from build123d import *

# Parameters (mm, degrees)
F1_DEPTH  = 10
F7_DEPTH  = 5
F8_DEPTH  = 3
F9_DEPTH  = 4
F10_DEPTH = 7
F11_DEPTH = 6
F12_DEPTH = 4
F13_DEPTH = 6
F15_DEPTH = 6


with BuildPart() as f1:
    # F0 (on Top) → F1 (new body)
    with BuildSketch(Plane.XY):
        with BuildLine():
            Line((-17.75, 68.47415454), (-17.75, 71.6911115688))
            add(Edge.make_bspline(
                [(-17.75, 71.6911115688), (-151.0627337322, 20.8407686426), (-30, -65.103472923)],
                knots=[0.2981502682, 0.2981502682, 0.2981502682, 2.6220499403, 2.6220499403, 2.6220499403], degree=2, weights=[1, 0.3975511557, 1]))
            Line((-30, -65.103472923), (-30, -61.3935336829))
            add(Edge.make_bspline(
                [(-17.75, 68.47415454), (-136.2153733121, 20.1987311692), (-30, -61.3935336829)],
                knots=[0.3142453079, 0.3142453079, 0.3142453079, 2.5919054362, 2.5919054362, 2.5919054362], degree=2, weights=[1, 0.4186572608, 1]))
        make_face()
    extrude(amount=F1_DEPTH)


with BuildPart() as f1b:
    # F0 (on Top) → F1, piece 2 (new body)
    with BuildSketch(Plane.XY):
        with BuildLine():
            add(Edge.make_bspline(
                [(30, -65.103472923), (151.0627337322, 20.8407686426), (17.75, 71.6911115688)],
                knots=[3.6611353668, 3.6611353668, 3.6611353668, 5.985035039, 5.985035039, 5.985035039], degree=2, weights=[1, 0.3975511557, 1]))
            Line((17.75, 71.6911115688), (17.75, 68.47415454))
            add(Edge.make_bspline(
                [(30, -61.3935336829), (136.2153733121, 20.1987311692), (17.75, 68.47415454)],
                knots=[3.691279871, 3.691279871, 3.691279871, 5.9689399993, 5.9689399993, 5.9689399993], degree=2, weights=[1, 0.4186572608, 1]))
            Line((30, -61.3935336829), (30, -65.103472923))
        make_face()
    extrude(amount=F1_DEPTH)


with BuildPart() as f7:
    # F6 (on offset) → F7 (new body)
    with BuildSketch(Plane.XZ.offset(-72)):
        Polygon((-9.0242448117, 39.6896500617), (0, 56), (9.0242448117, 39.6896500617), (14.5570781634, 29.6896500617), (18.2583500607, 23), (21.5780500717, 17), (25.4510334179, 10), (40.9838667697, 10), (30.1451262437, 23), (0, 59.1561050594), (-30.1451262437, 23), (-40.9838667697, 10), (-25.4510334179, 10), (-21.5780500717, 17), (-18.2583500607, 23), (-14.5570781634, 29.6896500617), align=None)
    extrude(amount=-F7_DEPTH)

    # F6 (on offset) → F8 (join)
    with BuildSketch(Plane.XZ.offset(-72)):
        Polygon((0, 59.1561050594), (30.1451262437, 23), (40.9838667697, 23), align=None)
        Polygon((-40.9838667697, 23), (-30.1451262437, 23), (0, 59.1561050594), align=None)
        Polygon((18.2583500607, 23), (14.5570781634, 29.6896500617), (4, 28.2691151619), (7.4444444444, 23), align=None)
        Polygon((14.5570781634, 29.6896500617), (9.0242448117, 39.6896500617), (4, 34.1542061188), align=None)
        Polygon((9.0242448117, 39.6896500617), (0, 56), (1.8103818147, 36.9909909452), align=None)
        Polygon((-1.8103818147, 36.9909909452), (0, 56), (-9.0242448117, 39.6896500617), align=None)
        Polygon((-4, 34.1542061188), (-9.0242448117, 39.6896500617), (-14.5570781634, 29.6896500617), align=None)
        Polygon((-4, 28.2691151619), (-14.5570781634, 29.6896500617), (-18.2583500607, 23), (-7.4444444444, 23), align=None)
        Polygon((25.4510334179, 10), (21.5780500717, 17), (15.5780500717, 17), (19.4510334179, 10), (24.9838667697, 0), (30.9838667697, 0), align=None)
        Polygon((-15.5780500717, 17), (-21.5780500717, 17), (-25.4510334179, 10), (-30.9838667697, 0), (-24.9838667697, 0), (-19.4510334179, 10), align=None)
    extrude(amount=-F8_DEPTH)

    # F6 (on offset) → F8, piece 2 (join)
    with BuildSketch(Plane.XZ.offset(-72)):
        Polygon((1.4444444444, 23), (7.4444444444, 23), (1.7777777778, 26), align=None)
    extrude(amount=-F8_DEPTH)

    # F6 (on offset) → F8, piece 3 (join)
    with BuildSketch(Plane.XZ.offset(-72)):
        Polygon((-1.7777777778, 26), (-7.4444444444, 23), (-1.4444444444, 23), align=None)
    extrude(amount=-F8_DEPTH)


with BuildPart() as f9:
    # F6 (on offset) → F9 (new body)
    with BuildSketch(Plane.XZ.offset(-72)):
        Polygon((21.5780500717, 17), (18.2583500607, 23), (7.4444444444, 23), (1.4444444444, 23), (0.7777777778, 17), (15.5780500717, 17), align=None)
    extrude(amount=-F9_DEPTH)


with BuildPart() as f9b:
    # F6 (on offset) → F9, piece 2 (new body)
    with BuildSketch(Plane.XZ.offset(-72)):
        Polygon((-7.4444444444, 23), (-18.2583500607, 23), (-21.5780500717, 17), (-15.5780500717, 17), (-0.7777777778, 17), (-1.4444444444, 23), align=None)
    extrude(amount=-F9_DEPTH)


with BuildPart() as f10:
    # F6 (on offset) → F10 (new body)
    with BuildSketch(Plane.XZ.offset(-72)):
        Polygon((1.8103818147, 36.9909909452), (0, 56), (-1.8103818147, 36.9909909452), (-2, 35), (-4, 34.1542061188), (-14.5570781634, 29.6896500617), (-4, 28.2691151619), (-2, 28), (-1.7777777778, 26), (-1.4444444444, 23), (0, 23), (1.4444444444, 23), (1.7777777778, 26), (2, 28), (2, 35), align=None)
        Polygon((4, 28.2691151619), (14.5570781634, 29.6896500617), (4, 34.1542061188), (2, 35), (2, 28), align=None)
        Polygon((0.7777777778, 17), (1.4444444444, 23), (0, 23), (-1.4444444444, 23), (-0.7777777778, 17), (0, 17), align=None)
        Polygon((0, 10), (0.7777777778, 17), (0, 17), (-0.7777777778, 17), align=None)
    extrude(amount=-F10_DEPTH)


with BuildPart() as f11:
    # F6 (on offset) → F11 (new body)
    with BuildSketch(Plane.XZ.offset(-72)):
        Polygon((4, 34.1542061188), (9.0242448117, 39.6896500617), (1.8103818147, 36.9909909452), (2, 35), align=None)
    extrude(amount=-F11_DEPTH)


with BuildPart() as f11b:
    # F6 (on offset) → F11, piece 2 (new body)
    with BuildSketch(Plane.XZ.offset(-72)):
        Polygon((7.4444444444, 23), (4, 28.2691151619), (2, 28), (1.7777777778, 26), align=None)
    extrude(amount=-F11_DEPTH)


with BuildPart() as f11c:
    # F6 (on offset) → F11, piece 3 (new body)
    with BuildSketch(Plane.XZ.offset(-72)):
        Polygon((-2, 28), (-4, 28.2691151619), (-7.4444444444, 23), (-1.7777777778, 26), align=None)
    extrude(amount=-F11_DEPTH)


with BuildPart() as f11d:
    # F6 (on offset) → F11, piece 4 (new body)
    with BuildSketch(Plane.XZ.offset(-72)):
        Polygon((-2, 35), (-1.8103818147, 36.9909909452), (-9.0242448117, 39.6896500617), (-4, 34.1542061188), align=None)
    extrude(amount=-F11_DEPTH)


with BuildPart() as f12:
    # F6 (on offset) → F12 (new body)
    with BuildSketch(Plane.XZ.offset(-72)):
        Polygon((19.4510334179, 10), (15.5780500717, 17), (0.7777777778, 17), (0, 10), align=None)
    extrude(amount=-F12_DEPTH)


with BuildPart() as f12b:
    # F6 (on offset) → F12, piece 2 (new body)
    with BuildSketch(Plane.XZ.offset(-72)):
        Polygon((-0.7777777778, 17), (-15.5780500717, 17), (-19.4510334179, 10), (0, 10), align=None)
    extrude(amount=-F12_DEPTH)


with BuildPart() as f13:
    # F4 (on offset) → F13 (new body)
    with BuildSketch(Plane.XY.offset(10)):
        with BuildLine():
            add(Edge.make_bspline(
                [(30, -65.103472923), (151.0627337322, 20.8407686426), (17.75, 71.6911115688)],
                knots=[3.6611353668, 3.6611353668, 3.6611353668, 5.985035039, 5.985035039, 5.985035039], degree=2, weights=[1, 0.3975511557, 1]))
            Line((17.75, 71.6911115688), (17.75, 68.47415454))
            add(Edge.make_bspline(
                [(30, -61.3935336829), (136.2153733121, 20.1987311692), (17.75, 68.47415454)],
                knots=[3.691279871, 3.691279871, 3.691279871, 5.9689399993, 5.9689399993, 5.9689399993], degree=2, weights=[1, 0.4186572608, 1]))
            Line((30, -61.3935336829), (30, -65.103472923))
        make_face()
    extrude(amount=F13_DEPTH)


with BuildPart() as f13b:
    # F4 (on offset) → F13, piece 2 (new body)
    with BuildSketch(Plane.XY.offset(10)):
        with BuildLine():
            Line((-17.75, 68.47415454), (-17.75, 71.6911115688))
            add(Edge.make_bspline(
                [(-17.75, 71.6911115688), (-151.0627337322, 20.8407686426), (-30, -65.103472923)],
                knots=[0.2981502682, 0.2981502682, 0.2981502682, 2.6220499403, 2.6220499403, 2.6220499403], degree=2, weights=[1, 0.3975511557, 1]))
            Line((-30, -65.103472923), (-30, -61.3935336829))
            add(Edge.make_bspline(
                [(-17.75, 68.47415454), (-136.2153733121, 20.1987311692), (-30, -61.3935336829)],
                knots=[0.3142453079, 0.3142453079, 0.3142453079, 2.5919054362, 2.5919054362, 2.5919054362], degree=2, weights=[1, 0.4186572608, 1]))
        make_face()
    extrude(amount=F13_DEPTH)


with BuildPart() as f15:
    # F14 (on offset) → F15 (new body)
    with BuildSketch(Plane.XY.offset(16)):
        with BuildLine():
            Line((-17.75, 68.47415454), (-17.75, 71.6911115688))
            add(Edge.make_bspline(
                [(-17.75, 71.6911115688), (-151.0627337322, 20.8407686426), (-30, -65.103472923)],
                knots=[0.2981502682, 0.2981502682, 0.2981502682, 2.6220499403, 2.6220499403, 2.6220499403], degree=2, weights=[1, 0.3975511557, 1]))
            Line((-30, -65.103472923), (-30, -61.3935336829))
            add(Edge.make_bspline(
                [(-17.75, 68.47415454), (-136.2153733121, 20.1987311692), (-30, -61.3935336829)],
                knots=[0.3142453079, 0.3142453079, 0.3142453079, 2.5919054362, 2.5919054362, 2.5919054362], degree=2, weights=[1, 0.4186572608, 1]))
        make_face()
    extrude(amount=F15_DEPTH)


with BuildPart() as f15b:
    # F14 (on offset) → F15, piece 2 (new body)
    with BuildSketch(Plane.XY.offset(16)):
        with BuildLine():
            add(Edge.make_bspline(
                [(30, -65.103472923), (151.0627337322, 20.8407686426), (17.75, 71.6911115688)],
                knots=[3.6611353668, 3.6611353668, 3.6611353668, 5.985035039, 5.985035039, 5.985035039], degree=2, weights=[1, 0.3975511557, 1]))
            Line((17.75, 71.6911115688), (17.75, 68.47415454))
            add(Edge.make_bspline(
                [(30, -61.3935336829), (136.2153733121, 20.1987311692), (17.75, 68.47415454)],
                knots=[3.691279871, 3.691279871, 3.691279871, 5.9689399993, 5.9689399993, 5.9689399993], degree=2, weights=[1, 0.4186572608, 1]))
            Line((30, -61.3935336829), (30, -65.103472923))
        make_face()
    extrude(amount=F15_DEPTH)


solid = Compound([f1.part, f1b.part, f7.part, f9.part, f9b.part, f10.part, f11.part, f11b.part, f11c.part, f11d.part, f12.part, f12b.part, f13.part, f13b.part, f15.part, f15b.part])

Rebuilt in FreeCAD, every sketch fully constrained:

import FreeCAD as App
import Part
import Sketcher


def add_polygon(sketch, points):
    """Adds a closed chain of lines whose ends are joined by coincident constraints."""
    first, n = sketch.GeometryCount, len(points)
    for a, b in zip(points, points[1:] + points[:1]):
        sketch.addGeometry(Part.LineSegment(App.Vector(*a, 0), App.Vector(*b, 0)), False)
    for i in range(n):
        sketch.addConstraint(Sketcher.Constraint("Coincident", first + i, 2, first + (i + 1) % n, 1))

doc = App.newDocument("Part")
body = doc.addObject("PartDesign::Body", "Body")

sketch1 = body.newObject("Sketcher::SketchObject", "Sketch")
sketch1.AttachmentSupport = (doc.getObject("XY_Plane"), [""])
sketch1.MapMode = "FlatFace"
sketch1.addGeometry([
    Part.LineSegment(App.Vector(-17.75, 68.474155, 0), App.Vector(-17.75, 71.691112, 0)),
    Part.BSplineCurve([App.Vector(-17.75, 71.691112, 0), App.Vector(-151.062734, 20.840769, 0), App.Vector(-30, -65.103473, 0)], [3, 3], [0.298150268, 2.62204994], False, 2, [1, 0.397551156, 1], False),
    Part.LineSegment(App.Vector(-30, -65.103473, 0), App.Vector(-30, -61.393534, 0)),
    Part.BSplineCurve([App.Vector(-17.75, 68.474155, 0), App.Vector(-136.215373, 20.198731, 0), App.Vector(-30, -61.393534, 0)], [3, 3], [0.314245308, 2.591905436], False, 2, [1, 0.418657261, 1], False),
], False)
sketch1.addConstraint([
    Sketcher.Constraint("Block", 1),
    Sketcher.Constraint("Block", 3),
    Sketcher.Constraint("Coincident", 0, 2, 1, 1),
    Sketcher.Constraint("Coincident", 1, 2, 2, 1),
    Sketcher.Constraint("Coincident", 2, 2, 3, 2),
    Sketcher.Constraint("Coincident", 3, 1, 0, 1),
])
pad1 = body.newObject("PartDesign::Pad", "Pad")
pad1.Profile = sketch1
pad1.Length = 10
body2 = doc.addObject("PartDesign::Body", "Body001")

sketch2 = body2.newObject("Sketcher::SketchObject", "Sketch001")
sketch2.AttachmentSupport = (doc.getObject("XY_Plane001"), [""])
sketch2.MapMode = "FlatFace"
sketch2.addGeometry([
    Part.BSplineCurve([App.Vector(30, -65.103473, 0), App.Vector(151.062734, 20.840769, 0), App.Vector(17.75, 71.691112, 0)], [3, 3], [3.661135367, 5.985035039], False, 2, [1, 0.397551156, 1], False),
    Part.LineSegment(App.Vector(17.75, 71.691112, 0), App.Vector(17.75, 68.474155, 0)),
    Part.BSplineCurve([App.Vector(30, -61.393534, 0), App.Vector(136.215373, 20.198731, 0), App.Vector(17.75, 68.474155, 0)], [3, 3], [3.691279871, 5.968939999], False, 2, [1, 0.418657261, 1], False),
    Part.LineSegment(App.Vector(30, -61.393534, 0), App.Vector(30, -65.103473, 0)),
], False)
sketch2.addConstraint([
    Sketcher.Constraint("Block", 0),
    Sketcher.Constraint("Block", 2),
    Sketcher.Constraint("Coincident", 0, 2, 1, 1),
    Sketcher.Constraint("Coincident", 1, 2, 2, 2),
    Sketcher.Constraint("Coincident", 2, 1, 3, 1),
    Sketcher.Constraint("Coincident", 3, 2, 0, 1),
])
pad2 = body2.newObject("PartDesign::Pad", "Pad001")
pad2.Profile = sketch2
pad2.Length = 10
body3 = doc.addObject("PartDesign::Body", "Body002")
body3.AllowCompound = True

sketch3 = body3.newObject("Sketcher::SketchObject", "Sketch002")
sketch3.AttachmentSupport = (doc.getObject("XZ_Plane002"), [""])
sketch3.MapMode = "FlatFace"
sketch3.AttachmentOffset = App.Placement(App.Vector(0, 0, -72), App.Rotation())
add_polygon(sketch3, [(-9, 40), (0, 56), (9, 40), (15, 30), (18, 23), (22, 17), (25, 10), (41, 10), (30, 23), (0, 59), (-30, 23), (-41, 10), (-25, 10), (-22, 17), (-18, 23), (-15, 30)])
sketch3.addConstraint([
    Sketcher.Constraint("Horizontal", 6),
    Sketcher.Constraint("Horizontal", 11),
    Sketcher.Constraint("Symmetric", 7, 2, 9, 2, -2),
    Sketcher.Constraint("Symmetric", 6, 2, 10, 2, -2),
    Sketcher.Constraint("Symmetric", 4, 2, 12, 2, -2),
    Sketcher.Constraint("Symmetric", 3, 2, 13, 2, -2),
    Sketcher.Constraint("Symmetric", 2, 2, 14, 2, -2),
    Sketcher.Constraint("Symmetric", 1, 2, 15, 2, -2),
    Sketcher.Constraint("PointOnObject", 0, 2, -2),
    Sketcher.Constraint("PointOnObject", 8, 2, -2),
    Sketcher.Constraint("Parallel", 1, 2),
    Sketcher.Constraint("Parallel", 2, 3),
    Sketcher.Constraint("Parallel", 3, 4),
    Sketcher.Constraint("Parallel", 4, 5),
    Sketcher.Constraint("Parallel", 7, 8),
    Sketcher.Constraint("Parallel", 0, 12),
    Sketcher.Constraint("Horizontal", 3, 2, 7, 2),
    Sketcher.Constraint("Distance", 5, 8.0),
    Sketcher.Constraint("DistanceY", -1, 1, 0, 2, 56.0),
    Sketcher.Constraint("DistanceY", -1, 1, 3, 2, 23.0),
    Sketcher.Constraint("DistanceY", -1, 1, 4, 2, 17.0),
    Sketcher.Constraint("DistanceY", -1, 1, 5, 2, 10.0),
    Sketcher.Constraint("DistanceY", 2, 2, 1, 2, 10.0),
    Sketcher.Constraint("Distance", 0, 18.6404),
    Sketcher.Constraint("Distance", 7, 16.92567),
    Sketcher.Constraint("Distance", 8, 47.07433),
])
pad3 = body3.newObject("PartDesign::Pad", "Pad002")
pad3.Profile = sketch3
pad3.Length = 5
pad3.Reversed = True

sketch4 = body3.newObject("Sketcher::SketchObject", "Sketch003")
sketch4.AttachmentSupport = (doc.getObject("XZ_Plane002"), [""])
sketch4.MapMode = "FlatFace"
sketch4.AttachmentOffset = App.Placement(App.Vector(0, 0, -72), App.Rotation())
add_polygon(sketch4, [(0, 59), (30, 23), (41, 23)])
add_polygon(sketch4, [(-41, 23), (-30, 23), (0, 59)])
add_polygon(sketch4, [(18, 23), (15, 30), (4, 28), (7, 23)])
add_polygon(sketch4, [(15, 30), (9, 40), (4, 34)])
add_polygon(sketch4, [(9, 40), (0, 56), (2, 37)])
add_polygon(sketch4, [(-2, 37), (0, 56), (-9, 40)])
add_polygon(sketch4, [(-4, 34), (-9, 40), (-15, 30)])
add_polygon(sketch4, [(-4, 28), (-15, 30), (-18, 23), (-7, 23)])
add_polygon(sketch4, [(25, 10), (22, 17), (16, 17), (19, 10), (25, 0), (31, 0)])
add_polygon(sketch4, [(-16, 17), (-22, 17), (-25, 10), (-31, 0), (-25, 0), (-19, 10)])
sketch4.addConstraint([
    Sketcher.Constraint("Horizontal", 1),
    Sketcher.Constraint("Horizontal", 3),
    Sketcher.Constraint("Horizontal", 9),
    Sketcher.Constraint("Horizontal", 24),
    Sketcher.Constraint("Horizontal", 27),
    Sketcher.Constraint("Horizontal", 30),
    Sketcher.Constraint("Horizontal", 32),
    Sketcher.Constraint("Horizontal", 35),
    Sketcher.Constraint("Coincident", 4, 2, 2, 2),
    Sketcher.Constraint("Coincident", 12, 2, 6, 2),
    Sketcher.Constraint("Coincident", 15, 2, 10, 2),
    Sketcher.Constraint("Coincident", 16, 2, 13, 2),
    Sketcher.Constraint("Coincident", 19, 2, 17, 2),
    Sketcher.Constraint("Coincident", 22, 2, 20, 2),
    Sketcher.Constraint("Symmetric", 30, 2, 34, 2, -1, 1),
    Sketcher.Constraint("Symmetric", 0, 2, 3, 2, -2),
    Sketcher.Constraint("Symmetric", 10, 2, 17, 2, -2),
    Sketcher.Constraint("Symmetric", 14, 2, 18, 2, -2),
    Sketcher.Constraint("Symmetric", 6, 2, 20, 2, -2),
    Sketcher.Constraint("Symmetric", 11, 2, 21, 2, -2),
    Sketcher.Constraint("Symmetric", 9, 2, 23, 2, -2),
    Sketcher.Constraint("Symmetric", 7, 2, 25, 2, -2),
    Sketcher.Constraint("Symmetric", 26, 2, 32, 2, -2),
    Sketcher.Constraint("Symmetric", 31, 2, 33, 2, -2),
    Sketcher.Constraint("Symmetric", 29, 2, 35, 2, -2),
    Sketcher.Constraint("Symmetric", 28, 2, 36, 2, -2),
    Sketcher.Constraint("PointOnObject", 2, 2, -2),
    Sketcher.Constraint("PointOnObject", 13, 2, -2),
    Sketcher.Constraint("Parallel", 6, 10),
    Sketcher.Constraint("Parallel", 10, 13),
    Sketcher.Constraint("Parallel", 13, 26),
    Sketcher.Constraint("Parallel", 26, 28),
    Sketcher.Constraint("Parallel", 28, 29),
    Sketcher.Constraint("Parallel", 29, 31),
    Sketcher.Constraint("Parallel", 36, 37),
    Sketcher.Constraint("Horizontal", 5, 2, 8, 2),
    Sketcher.Constraint("Horizontal", 28, 2, 31, 2),
    Sketcher.Constraint("Vertical", 7, 2, 11, 2),
    Sketcher.Constraint("Equal", 1, 3),
    Sketcher.Constraint("Equal", 9, 24),
    Sketcher.Constraint("Equal", 20, 29),
    Sketcher.Constraint("DistanceX", 27, 2, 27, 1, 6.0),
    Sketcher.Constraint("Distance", 26, 8.0),
    Sketcher.Constraint("DistanceY", -1, 1, 0, 2, 23.0),
    Sketcher.Constraint("DistanceX", -1, 1, 7, 2, 4.0),
    Sketcher.Constraint("DistanceY", -1, 1, 13, 2, 56.0),
    Sketcher.Constraint("DistanceY", -1, 1, 26, 2, 17.0),
    Sketcher.Constraint("DistanceY", -1, 1, 28, 2, 10.0),
    Sketcher.Constraint("DistanceX", 5, 2, 34, 2, 10.0),
    Sketcher.Constraint("Distance", 13, 18.6404),
    Sketcher.Constraint("DistanceX", 1, 1, 1, 2, 10.838741),
    Sketcher.Constraint("DistanceX", 8, 2, 10, 2, 1.5798),
    Sketcher.Constraint("DistanceX", 9, 2, 26, 2, 3.3197),
    Sketcher.Constraint("Distance", 0, 47.07433),
    Sketcher.Constraint("Distance", 7, 10.652221),
    Sketcher.Constraint("Distance", 11, 7.475572),
    Sketcher.Constraint("DistanceX", -1, 1, 14, 2, 1.810382),
    Sketcher.Constraint("DistanceY", -1, 1, 14, 2, 36.990991),
])
pad4 = body3.newObject("PartDesign::Pad", "Pad003")
pad4.Profile = sketch4
pad4.Length = 3
pad4.Reversed = True

sketch5 = body3.newObject("Sketcher::SketchObject", "Sketch004")
sketch5.AttachmentSupport = (doc.getObject("XZ_Plane002"), [""])
sketch5.MapMode = "FlatFace"
sketch5.AttachmentOffset = App.Placement(App.Vector(0, 0, -72), App.Rotation())
add_polygon(sketch5, [(1.4, 23), (7.4, 23), (1.8, 26)])
sketch5.addConstraint([
    Sketcher.Constraint("Horizontal", 0),
    Sketcher.Constraint("DistanceX", 0, 1, 0, 2, 6.0),
    Sketcher.Constraint("DistanceY", -1, 1, 0, 2, 23.0),
    Sketcher.Constraint("DistanceY", -1, 1, 1, 2, 26.0),
    Sketcher.Constraint("Distance", 2, 3.018462),
    Sketcher.Constraint("DistanceX", -1, 1, 0, 2, 7.444444),
])
pad5 = body3.newObject("PartDesign::Pad", "Pad004")
pad5.Profile = sketch5
pad5.Length = 3
pad5.Reversed = True

sketch6 = body3.newObject("Sketcher::SketchObject", "Sketch005")
sketch6.AttachmentSupport = (doc.getObject("XZ_Plane002"), [""])
sketch6.MapMode = "FlatFace"
sketch6.AttachmentOffset = App.Placement(App.Vector(0, 0, -72), App.Rotation())
add_polygon(sketch6, [(-1.8, 26), (-7.4, 23), (-1.4, 23)])
sketch6.addConstraint([
    Sketcher.Constraint("Horizontal", 1),
    Sketcher.Constraint("DistanceX", 1, 1, 1, 2, 6.0),
    Sketcher.Constraint("DistanceY", -1, 1, 0, 2, 23.0),
    Sketcher.Constraint("DistanceY", -1, 1, 2, 2, 26.0),
    Sketcher.Constraint("Distance", 2, 3.018462),
    Sketcher.Constraint("DistanceX", 0, 2, -1, 1, 7.444444),
])
pad6 = body3.newObject("PartDesign::Pad", "Pad005")
pad6.Profile = sketch6
pad6.Length = 3
pad6.Reversed = True
body4 = doc.addObject("PartDesign::Body", "Body003")

sketch7 = body4.newObject("Sketcher::SketchObject", "Sketch006")
sketch7.AttachmentSupport = (doc.getObject("XZ_Plane003"), [""])
sketch7.MapMode = "FlatFace"
sketch7.AttachmentOffset = App.Placement(App.Vector(0, 0, -72), App.Rotation())
add_polygon(sketch7, [(22, 17), (18, 23), (1, 23), (1, 17)])
sketch7.addConstraint([
    Sketcher.Constraint("Horizontal", 1),
    Sketcher.Constraint("Horizontal", 3),
    Sketcher.Constraint("DistanceY", -1, 1, 0, 2, 23.0),
    Sketcher.Constraint("DistanceY", -1, 1, 2, 2, 17.0),
    Sketcher.Constraint("DistanceX", 0, 2, 3, 2, 3.3197),
    Sketcher.Constraint("DistanceX", 1, 2, 1, 1, 16.813906),
    Sketcher.Constraint("DistanceX", 3, 1, 3, 2, 20.800272),
    Sketcher.Constraint("DistanceX", -1, 1, 0, 2, 18.25835),
])
pad7 = body4.newObject("PartDesign::Pad", "Pad006")
pad7.Profile = sketch7
pad7.Length = 4
pad7.Reversed = True
body5 = doc.addObject("PartDesign::Body", "Body004")

sketch8 = body5.newObject("Sketcher::SketchObject", "Sketch007")
sketch8.AttachmentSupport = (doc.getObject("XZ_Plane004"), [""])
sketch8.MapMode = "FlatFace"
sketch8.AttachmentOffset = App.Placement(App.Vector(0, 0, -72), App.Rotation())
add_polygon(sketch8, [(-18, 23), (-22, 17), (-1, 17), (-1, 23)])
sketch8.addConstraint([
    Sketcher.Constraint("Horizontal", 1),
    Sketcher.Constraint("Horizontal", 3),
    Sketcher.Constraint("DistanceY", -1, 1, 0, 2, 17.0),
    Sketcher.Constraint("DistanceY", -1, 1, 2, 2, 23.0),
    Sketcher.Constraint("DistanceX", 0, 2, 3, 2, 3.3197),
    Sketcher.Constraint("DistanceX", 1, 1, 1, 2, 20.800272),
    Sketcher.Constraint("DistanceX", 3, 2, 3, 1, 16.813906),
    Sketcher.Constraint("DistanceX", 0, 2, -1, 1, 21.57805),
])
pad8 = body5.newObject("PartDesign::Pad", "Pad007")
pad8.Profile = sketch8
pad8.Length = 4
pad8.Reversed = True
body6 = doc.addObject("PartDesign::Body", "Body005")

sketch9 = body6.newObject("Sketcher::SketchObject", "Sketch008")
sketch9.AttachmentSupport = (doc.getObject("XZ_Plane005"), [""])
sketch9.MapMode = "FlatFace"
sketch9.AttachmentOffset = App.Placement(App.Vector(0, 0, -72), App.Rotation())
add_polygon(sketch9, [(1.8, 37), (0, 56), (-1.8, 37), (-2, 35), (-4, 34.2), (-14.6, 29.7), (-4, 28.3), (-2, 28), (-1.8, 26), (-1.4, 23), (-0.8, 17), (0, 10), (0.8, 17), (1.4, 23), (1.8, 26), (2, 28), (4, 28.3), (14.6, 29.7), (4, 34.2), (2, 35)])
sketch9.addConstraint([
    Sketcher.Constraint("Symmetric", 9, 2, 11, 2, -2),
    Sketcher.Constraint("Symmetric", 8, 2, 12, 2, -2),
    Sketcher.Constraint("Symmetric", 7, 2, 13, 2, -2),
    Sketcher.Constraint("Symmetric", 6, 2, 14, 2, -2),
    Sketcher.Constraint("Symmetric", 5, 2, 15, 2, -2),
    Sketcher.Constraint("Symmetric", 4, 2, 16, 2, -2),
    Sketcher.Constraint("Symmetric", 3, 2, 17, 2, -2),
    Sketcher.Constraint("Symmetric", 2, 2, 18, 2, -2),
    Sketcher.Constraint("Symmetric", 1, 2, 19, 2, -2),
    Sketcher.Constraint("PointOnObject", 0, 2, -2),
    Sketcher.Constraint("PointOnObject", 10, 2, -2),
    Sketcher.Constraint("Parallel", 1, 2),
    Sketcher.Constraint("Parallel", 3, 4),
    Sketcher.Constraint("Parallel", 5, 6),
    Sketcher.Constraint("Parallel", 7, 8),
    Sketcher.Constraint("Parallel", 8, 9),
    Sketcher.Constraint("Parallel", 9, 10),
    Sketcher.Constraint("Vertical", 3, 2, 5, 2),
    Sketcher.Constraint("Vertical", 2, 2, 6, 2),
    Sketcher.Constraint("Distance", 2, 2.0),
    Sketcher.Constraint("DistanceY", -1, 1, 0, 2, 56.0),
    Sketcher.Constraint("DistanceX", 2, 2, -1, 1, 2.0),
    Sketcher.Constraint("DistanceY", -1, 1, 2, 2, 35.0),
    Sketcher.Constraint("DistanceX", 3, 2, -1, 1, 4.0),
    Sketcher.Constraint("DistanceY", -1, 1, 6, 2, 28.0),
    Sketcher.Constraint("DistanceY", -1, 1, 7, 2, 26.0),
    Sketcher.Constraint("DistanceY", -1, 1, 8, 2, 23.0),
    Sketcher.Constraint("DistanceY", -1, 1, 9, 2, 17.0),
    Sketcher.Constraint("DistanceY", -1, 1, 10, 2, 10.0),
    Sketcher.Constraint("DistanceX", 13, 2, 16, 2, 12.7793),
    Sketcher.Constraint("Distance", 3, 2.17149),
])
pad9 = body6.newObject("PartDesign::Pad", "Pad008")
pad9.Profile = sketch9
pad9.Length = 7
pad9.Reversed = True
body7 = doc.addObject("PartDesign::Body", "Body006")

sketch10 = body7.newObject("Sketcher::SketchObject", "Sketch009")
sketch10.AttachmentSupport = (doc.getObject("XZ_Plane006"), [""])
sketch10.MapMode = "FlatFace"
sketch10.AttachmentOffset = App.Placement(App.Vector(0, 0, -72), App.Rotation())
add_polygon(sketch10, [(4, 34.2), (9, 39.7), (1.8, 37), (2, 35)])
sketch10.addConstraint([
    Sketcher.Constraint("Distance", 2, 2.0),
    Sketcher.Constraint("DistanceX", -1, 1, 2, 2, 2.0),
    Sketcher.Constraint("DistanceY", -1, 1, 2, 2, 35.0),
    Sketcher.Constraint("DistanceX", -1, 1, 3, 2, 4.0),
    Sketcher.Constraint("Distance", 0, 7.475572),
    Sketcher.Constraint("Distance", 3, 2.17149),
    Sketcher.Constraint("DistanceY", -1, 1, 0, 2, 39.68965),
    Sketcher.Constraint("DistanceX", -1, 1, 1, 2, 1.810382),
])
pad10 = body7.newObject("PartDesign::Pad", "Pad009")
pad10.Profile = sketch10
pad10.Length = 6
pad10.Reversed = True
body8 = doc.addObject("PartDesign::Body", "Body007")

sketch11 = body8.newObject("Sketcher::SketchObject", "Sketch010")
sketch11.AttachmentSupport = (doc.getObject("XZ_Plane007"), [""])
sketch11.MapMode = "FlatFace"
sketch11.AttachmentOffset = App.Placement(App.Vector(0, 0, -72), App.Rotation())
add_polygon(sketch11, [(7.4, 23), (4, 28.3), (2, 28), (1.8, 26)])
sketch11.addConstraint([
    Sketcher.Constraint("DistanceX", -1, 1, 0, 2, 4.0),
    Sketcher.Constraint("DistanceX", -1, 1, 1, 2, 2.0),
    Sketcher.Constraint("DistanceY", -1, 1, 1, 2, 28.0),
    Sketcher.Constraint("DistanceY", -1, 1, 2, 2, 26.0),
    Sketcher.Constraint("DistanceY", -1, 1, 3, 2, 23.0),
    Sketcher.Constraint("Distance", 0, 6.295059),
    Sketcher.Constraint("Distance", 1, 2.018025),
    Sketcher.Constraint("Distance", 2, 2.012308),
])
pad11 = body8.newObject("PartDesign::Pad", "Pad010")
pad11.Profile = sketch11
pad11.Length = 6
pad11.Reversed = True
body9 = doc.addObject("PartDesign::Body", "Body008")

sketch12 = body9.newObject("Sketcher::SketchObject", "Sketch011")
sketch12.AttachmentSupport = (doc.getObject("XZ_Plane008"), [""])
sketch12.MapMode = "FlatFace"
sketch12.AttachmentOffset = App.Placement(App.Vector(0, 0, -72), App.Rotation())
add_polygon(sketch12, [(-2, 28), (-4, 28.3), (-7.4, 23), (-1.8, 26)])
sketch12.addConstraint([
    Sketcher.Constraint("DistanceX", 0, 2, -1, 1, 4.0),
    Sketcher.Constraint("DistanceY", -1, 1, 1, 2, 23.0),
    Sketcher.Constraint("DistanceY", -1, 1, 2, 2, 26.0),
    Sketcher.Constraint("DistanceX", 3, 2, -1, 1, 2.0),
    Sketcher.Constraint("DistanceY", -1, 1, 3, 2, 28.0),
    Sketcher.Constraint("Distance", 1, 6.295059),
    Sketcher.Constraint("Distance", 0, 2.018025),
    Sketcher.Constraint("Distance", 2, 6.411795),
])
pad12 = body9.newObject("PartDesign::Pad", "Pad011")
pad12.Profile = sketch12
pad12.Length = 6
pad12.Reversed = True
body10 = doc.addObject("PartDesign::Body", "Body009")

sketch13 = body10.newObject("Sketcher::SketchObject", "Sketch012")
sketch13.AttachmentSupport = (doc.getObject("XZ_Plane009"), [""])
sketch13.MapMode = "FlatFace"
sketch13.AttachmentOffset = App.Placement(App.Vector(0, 0, -72), App.Rotation())
add_polygon(sketch13, [(-2, 35), (-1.8, 37), (-9, 39.7), (-4, 34.2)])
sketch13.addConstraint([
    Sketcher.Constraint("Distance", 0, 2.0),
    Sketcher.Constraint("DistanceX", 2, 2, -1, 1, 4.0),
    Sketcher.Constraint("DistanceX", 3, 2, -1, 1, 2.0),
    Sketcher.Constraint("DistanceY", -1, 1, 3, 2, 35.0),
    Sketcher.Constraint("Distance", 2, 7.475572),
    Sketcher.Constraint("Distance", 3, 2.17149),
    Sketcher.Constraint("DistanceX", 0, 2, -1, 1, 1.810382),
    Sketcher.Constraint("DistanceY", -1, 1, 1, 2, 39.68965),
])
pad13 = body10.newObject("PartDesign::Pad", "Pad012")
pad13.Profile = sketch13
pad13.Length = 6
pad13.Reversed = True
body11 = doc.addObject("PartDesign::Body", "Body010")

sketch14 = body11.newObject("Sketcher::SketchObject", "Sketch013")
sketch14.AttachmentSupport = (doc.getObject("XZ_Plane010"), [""])
sketch14.MapMode = "FlatFace"
sketch14.AttachmentOffset = App.Placement(App.Vector(0, 0, -72), App.Rotation())
add_polygon(sketch14, [(19, 10), (16, 17), (1, 17), (0, 10)])
sketch14.addConstraint([
    Sketcher.Constraint("Horizontal", 1),
    Sketcher.Constraint("Horizontal", 3),
    Sketcher.Constraint("PointOnObject", 2, 2, -2),
    Sketcher.Constraint("Distance", 0, 8.0),
    Sketcher.Constraint("DistanceY", -1, 1, 0, 2, 17.0),
    Sketcher.Constraint("DistanceY", -1, 1, 2, 2, 10.0),
    Sketcher.Constraint("DistanceX", 1, 2, 1, 1, 14.800272),
    Sketcher.Constraint("DistanceX", 3, 1, 3, 2, 19.451033),
])
pad14 = body11.newObject("PartDesign::Pad", "Pad013")
pad14.Profile = sketch14
pad14.Length = 4
pad14.Reversed = True
body12 = doc.addObject("PartDesign::Body", "Body011")

sketch15 = body12.newObject("Sketcher::SketchObject", "Sketch014")
sketch15.AttachmentSupport = (doc.getObject("XZ_Plane011"), [""])
sketch15.MapMode = "FlatFace"
sketch15.AttachmentOffset = App.Placement(App.Vector(0, 0, -72), App.Rotation())
add_polygon(sketch15, [(-1, 17), (-16, 17), (-19, 10), (0, 10)])
sketch15.addConstraint([
    Sketcher.Constraint("Horizontal", 0),
    Sketcher.Constraint("Horizontal", 2),
    Sketcher.Constraint("PointOnObject", 2, 2, -2),
    Sketcher.Constraint("Distance", 1, 8.0),
    Sketcher.Constraint("DistanceY", -1, 1, 0, 2, 17.0),
    Sketcher.Constraint("DistanceY", -1, 1, 1, 2, 10.0),
    Sketcher.Constraint("DistanceX", 0, 2, 0, 1, 14.800272),
    Sketcher.Constraint("DistanceX", 2, 1, 2, 2, 19.451033),
])
pad15 = body12.newObject("PartDesign::Pad", "Pad014")
pad15.Profile = sketch15
pad15.Length = 4
pad15.Reversed = True
body13 = doc.addObject("PartDesign::Body", "Body012")

sketch16 = body13.newObject("Sketcher::SketchObject", "Sketch015")
sketch16.AttachmentSupport = (doc.getObject("XY_Plane012"), [""])
sketch16.MapMode = "FlatFace"
sketch16.AttachmentOffset = App.Placement(App.Vector(0, 0, 10), App.Rotation())
sketch16.addGeometry([
    Part.BSplineCurve([App.Vector(30, -65.103473, 0), App.Vector(151.062734, 20.840769, 0), App.Vector(17.75, 71.691112, 0)], [3, 3], [3.661135367, 5.985035039], False, 2, [1, 0.397551156, 1], False),
    Part.LineSegment(App.Vector(17.75, 71.691112, 0), App.Vector(17.75, 68.474155, 0)),
    Part.BSplineCurve([App.Vector(30, -61.393534, 0), App.Vector(136.215373, 20.198731, 0), App.Vector(17.75, 68.474155, 0)], [3, 3], [3.691279871, 5.968939999], False, 2, [1, 0.418657261, 1], False),
    Part.LineSegment(App.Vector(30, -61.393534, 0), App.Vector(30, -65.103473, 0)),
], False)
sketch16.addConstraint([
    Sketcher.Constraint("Block", 0),
    Sketcher.Constraint("Block", 2),
    Sketcher.Constraint("Coincident", 0, 2, 1, 1),
    Sketcher.Constraint("Coincident", 1, 2, 2, 2),
    Sketcher.Constraint("Coincident", 2, 1, 3, 1),
    Sketcher.Constraint("Coincident", 3, 2, 0, 1),
])
pad16 = body13.newObject("PartDesign::Pad", "Pad015")
pad16.Profile = sketch16
pad16.Length = 6
body14 = doc.addObject("PartDesign::Body", "Body013")

sketch17 = body14.newObject("Sketcher::SketchObject", "Sketch016")
sketch17.AttachmentSupport = (doc.getObject("XY_Plane013"), [""])
sketch17.MapMode = "FlatFace"
sketch17.AttachmentOffset = App.Placement(App.Vector(0, 0, 10), App.Rotation())
sketch17.addGeometry([
    Part.LineSegment(App.Vector(-17.75, 68.474155, 0), App.Vector(-17.75, 71.691112, 0)),
    Part.BSplineCurve([App.Vector(-17.75, 71.691112, 0), App.Vector(-151.062734, 20.840769, 0), App.Vector(-30, -65.103473, 0)], [3, 3], [0.298150268, 2.62204994], False, 2, [1, 0.397551156, 1], False),
    Part.LineSegment(App.Vector(-30, -65.103473, 0), App.Vector(-30, -61.393534, 0)),
    Part.BSplineCurve([App.Vector(-17.75, 68.474155, 0), App.Vector(-136.215373, 20.198731, 0), App.Vector(-30, -61.393534, 0)], [3, 3], [0.314245308, 2.591905436], False, 2, [1, 0.418657261, 1], False),
], False)
sketch17.addConstraint([
    Sketcher.Constraint("Block", 1),
    Sketcher.Constraint("Block", 3),
    Sketcher.Constraint("Coincident", 0, 2, 1, 1),
    Sketcher.Constraint("Coincident", 1, 2, 2, 1),
    Sketcher.Constraint("Coincident", 2, 2, 3, 2),
    Sketcher.Constraint("Coincident", 3, 1, 0, 1),
])
pad17 = body14.newObject("PartDesign::Pad", "Pad016")
pad17.Profile = sketch17
pad17.Length = 6
body15 = doc.addObject("PartDesign::Body", "Body014")

sketch18 = body15.newObject("Sketcher::SketchObject", "Sketch017")
sketch18.AttachmentSupport = (doc.getObject("XY_Plane014"), [""])
sketch18.MapMode = "FlatFace"
sketch18.AttachmentOffset = App.Placement(App.Vector(0, 0, 16), App.Rotation())
sketch18.addGeometry([
    Part.LineSegment(App.Vector(-17.75, 68.474155, 0), App.Vector(-17.75, 71.691112, 0)),
    Part.BSplineCurve([App.Vector(-17.75, 71.691112, 0), App.Vector(-151.062734, 20.840769, 0), App.Vector(-30, -65.103473, 0)], [3, 3], [0.298150268, 2.62204994], False, 2, [1, 0.397551156, 1], False),
    Part.LineSegment(App.Vector(-30, -65.103473, 0), App.Vector(-30, -61.393534, 0)),
    Part.BSplineCurve([App.Vector(-17.75, 68.474155, 0), App.Vector(-136.215373, 20.198731, 0), App.Vector(-30, -61.393534, 0)], [3, 3], [0.314245308, 2.591905436], False, 2, [1, 0.418657261, 1], False),
], False)
sketch18.addConstraint([
    Sketcher.Constraint("Block", 1),
    Sketcher.Constraint("Block", 3),
    Sketcher.Constraint("Coincident", 0, 2, 1, 1),
    Sketcher.Constraint("Coincident", 1, 2, 2, 1),
    Sketcher.Constraint("Coincident", 2, 2, 3, 2),
    Sketcher.Constraint("Coincident", 3, 1, 0, 1),
])
pad18 = body15.newObject("PartDesign::Pad", "Pad017")
pad18.Profile = sketch18
pad18.Length = 6
body16 = doc.addObject("PartDesign::Body", "Body015")

sketch19 = body16.newObject("Sketcher::SketchObject", "Sketch018")
sketch19.AttachmentSupport = (doc.getObject("XY_Plane015"), [""])
sketch19.MapMode = "FlatFace"
sketch19.AttachmentOffset = App.Placement(App.Vector(0, 0, 16), App.Rotation())
sketch19.addGeometry([
    Part.BSplineCurve([App.Vector(30, -65.103473, 0), App.Vector(151.062734, 20.840769, 0), App.Vector(17.75, 71.691112, 0)], [3, 3], [3.661135367, 5.985035039], False, 2, [1, 0.397551156, 1], False),
    Part.LineSegment(App.Vector(17.75, 71.691112, 0), App.Vector(17.75, 68.474155, 0)),
    Part.BSplineCurve([App.Vector(30, -61.393534, 0), App.Vector(136.215373, 20.198731, 0), App.Vector(17.75, 68.474155, 0)], [3, 3], [3.691279871, 5.968939999], False, 2, [1, 0.418657261, 1], False),
    Part.LineSegment(App.Vector(30, -61.393534, 0), App.Vector(30, -65.103473, 0)),
], False)
sketch19.addConstraint([
    Sketcher.Constraint("Block", 0),
    Sketcher.Constraint("Block", 2),
    Sketcher.Constraint("Coincident", 0, 2, 1, 1),
    Sketcher.Constraint("Coincident", 1, 2, 2, 2),
    Sketcher.Constraint("Coincident", 2, 1, 3, 1),
    Sketcher.Constraint("Coincident", 3, 2, 0, 1),
])
pad19 = body16.newObject("PartDesign::Pad", "Pad018")
pad19.Profile = sketch19
pad19.Length = 6

doc.recompute()
